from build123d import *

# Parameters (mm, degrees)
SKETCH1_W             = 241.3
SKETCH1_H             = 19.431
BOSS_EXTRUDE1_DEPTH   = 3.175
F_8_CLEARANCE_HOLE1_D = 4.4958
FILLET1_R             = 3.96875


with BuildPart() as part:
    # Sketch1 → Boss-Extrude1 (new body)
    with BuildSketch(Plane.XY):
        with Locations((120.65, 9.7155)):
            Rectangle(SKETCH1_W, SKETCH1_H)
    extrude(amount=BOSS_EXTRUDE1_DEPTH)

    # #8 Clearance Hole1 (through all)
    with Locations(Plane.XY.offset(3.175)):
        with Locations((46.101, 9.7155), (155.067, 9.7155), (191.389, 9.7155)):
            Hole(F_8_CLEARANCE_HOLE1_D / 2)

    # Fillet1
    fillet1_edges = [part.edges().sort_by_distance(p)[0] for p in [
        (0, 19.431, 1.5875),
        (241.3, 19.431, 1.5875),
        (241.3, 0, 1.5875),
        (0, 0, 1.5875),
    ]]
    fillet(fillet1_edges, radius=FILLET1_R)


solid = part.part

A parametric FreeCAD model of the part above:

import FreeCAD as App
import Part
import Sketcher
from FreeCAD import Vector
Q = App.Units.Quantity


def edges_at(feature, points):
    """Names of the edges that pass closest to the given points."""
    edges = feature.Shape.Edges
    near = lambda p: min(range(len(edges)), key=lambda i: edges[i].distToShape(Part.Vertex(*p))[0])
    return sorted({f"Edge{near(p) + 1}" for p in points})

doc = App.newDocument("Part")
body = doc.addObject("PartDesign::Body", "Body")

# Sketch on XY plane
sketch1 = body.newObject("Sketcher::SketchObject", "Sketch")
sketch1.AttachmentSupport = (doc.getObject("XY_Plane"), [""])
sketch1.MapMode = "FlatFace"
sketch1.addGeometry(Part.LineSegment(Vector(0, 19, 0), Vector(0, 0, 0)), False)
sketch1.addGeometry(Part.LineSegment(Vector(0, 0, 0), Vector(241, 0, 0)), False)
sketch1.addGeometry(Part.LineSegment(Vector(241, 0, 0), Vector(241, 19, 0)), False)
sketch1.addGeometry(Part.LineSegment(Vector(241, 19, 0), Vector(0, 19, 0)), False)
sketch1.addConstraint(Sketcher.Constraint("Coincident", 0, 2, 1, 1))
sketch1.addConstraint(Sketcher.Constraint("Coincident", 1, 2, 2, 1))
sketch1.addConstraint(Sketcher.Constraint("Coincident", 2, 2, 3, 1))
sketch1.addConstraint(Sketcher.Constraint("Coincident", 3, 2, 0, 1))
sketch1.addConstraint(Sketcher.Constraint("Vertical", 0))
sketch1.addConstraint(Sketcher.Constraint("Horizontal", 1))
sketch1.addConstraint(Sketcher.Constraint("Vertical", 2))
sketch1.addConstraint(Sketcher.Constraint("Horizontal", 3))
sketch1.addConstraint(Sketcher.Constraint("Coincident", 0, 2, -1, 1))
sketch1.addConstraint(Sketcher.Constraint("DistanceX", 1, 1, 1, 2, Q("9.5 in")))
sketch1.addConstraint(Sketcher.Constraint("DistanceY", 0, 2, 0, 1, Q("0.765 in")))
pad1 = body.newObject("PartDesign::Pad", "Pad")
pad1.Profile = sketch1
pad1.Length = Q("0.125 in")

# Sketch on XY plane
sketch2 = body.newObject("Sketcher::SketchObject", "Sketch001")
sketch2.AttachmentSupport = (doc.getObject("XY_Plane"), [""])
sketch2.MapMode = "FlatFace"
sketch2.AttachmentOffset = App.Placement(Vector(0, 0, 0.125 * 25.4), App.Rotation())
sketch2.addGeometry(Part.Circle(Vector(46.1, 9.7, 0), Vector(0, 0, 1), 2.2), False)
sketch2.addGeometry(Part.Circle(Vector(155.1, 9.7, 0), Vector(0, 0, 1), 2.2), False)
sketch2.addGeometry(Part.Circle(Vector(191.4, 9.7, 0), Vector(0, 0, 1), 2.2), False)
sketch2.addConstraint(Sketcher.Constraint("Equal", 0, 1))
sketch2.addConstraint(Sketcher.Constraint("Equal", 1, 2))
sketch2.addConstraint(Sketcher.Constraint("Horizontal", 0, 3, 1, 3))
sketch2.addConstraint(Sketcher.Constraint("Horizontal", 1, 3, 2, 3))
sketch2.addConstraint(Sketcher.Constraint("Diameter", 0, Q("0.177 in")))
sketch2.addConstraint(Sketcher.Constraint("DistanceX", 0, 3, 1, 3, Q("4.29 in")))
sketch2.addConstraint(Sketcher.Constraint("DistanceX", 1, 3, 2, 3, Q("1.43 in")))
sketch2.addConstraint(Sketcher.Constraint("DistanceX", -1, 1, 0, 3, Q("1.815 in")))
sketch2.addConstraint(Sketcher.Constraint("DistanceY", -1, 1, 0, 3, Q("0.3825 in")))
doc.recompute()
hole = body.newObject("PartDesign::Hole", "Hole")
hole.Profile = sketch2
hole.ThreadType = "None"
hole.Diameter = Q("0.177 in")
hole.DepthType = "ThroughAll"
doc.recompute()

fillet = body.newObject("PartDesign::Fillet", "Fillet")
fillet.Base = (hole, edges_at(hole, [
    (0, 19.431, 1.587),
    (241.3, 19.431, 1.587),
    (241.3, 0, 1.587),
    (0, 0, 1.587),
]))
fillet.Radius = Q("0.15625 in")

doc.recompute()
